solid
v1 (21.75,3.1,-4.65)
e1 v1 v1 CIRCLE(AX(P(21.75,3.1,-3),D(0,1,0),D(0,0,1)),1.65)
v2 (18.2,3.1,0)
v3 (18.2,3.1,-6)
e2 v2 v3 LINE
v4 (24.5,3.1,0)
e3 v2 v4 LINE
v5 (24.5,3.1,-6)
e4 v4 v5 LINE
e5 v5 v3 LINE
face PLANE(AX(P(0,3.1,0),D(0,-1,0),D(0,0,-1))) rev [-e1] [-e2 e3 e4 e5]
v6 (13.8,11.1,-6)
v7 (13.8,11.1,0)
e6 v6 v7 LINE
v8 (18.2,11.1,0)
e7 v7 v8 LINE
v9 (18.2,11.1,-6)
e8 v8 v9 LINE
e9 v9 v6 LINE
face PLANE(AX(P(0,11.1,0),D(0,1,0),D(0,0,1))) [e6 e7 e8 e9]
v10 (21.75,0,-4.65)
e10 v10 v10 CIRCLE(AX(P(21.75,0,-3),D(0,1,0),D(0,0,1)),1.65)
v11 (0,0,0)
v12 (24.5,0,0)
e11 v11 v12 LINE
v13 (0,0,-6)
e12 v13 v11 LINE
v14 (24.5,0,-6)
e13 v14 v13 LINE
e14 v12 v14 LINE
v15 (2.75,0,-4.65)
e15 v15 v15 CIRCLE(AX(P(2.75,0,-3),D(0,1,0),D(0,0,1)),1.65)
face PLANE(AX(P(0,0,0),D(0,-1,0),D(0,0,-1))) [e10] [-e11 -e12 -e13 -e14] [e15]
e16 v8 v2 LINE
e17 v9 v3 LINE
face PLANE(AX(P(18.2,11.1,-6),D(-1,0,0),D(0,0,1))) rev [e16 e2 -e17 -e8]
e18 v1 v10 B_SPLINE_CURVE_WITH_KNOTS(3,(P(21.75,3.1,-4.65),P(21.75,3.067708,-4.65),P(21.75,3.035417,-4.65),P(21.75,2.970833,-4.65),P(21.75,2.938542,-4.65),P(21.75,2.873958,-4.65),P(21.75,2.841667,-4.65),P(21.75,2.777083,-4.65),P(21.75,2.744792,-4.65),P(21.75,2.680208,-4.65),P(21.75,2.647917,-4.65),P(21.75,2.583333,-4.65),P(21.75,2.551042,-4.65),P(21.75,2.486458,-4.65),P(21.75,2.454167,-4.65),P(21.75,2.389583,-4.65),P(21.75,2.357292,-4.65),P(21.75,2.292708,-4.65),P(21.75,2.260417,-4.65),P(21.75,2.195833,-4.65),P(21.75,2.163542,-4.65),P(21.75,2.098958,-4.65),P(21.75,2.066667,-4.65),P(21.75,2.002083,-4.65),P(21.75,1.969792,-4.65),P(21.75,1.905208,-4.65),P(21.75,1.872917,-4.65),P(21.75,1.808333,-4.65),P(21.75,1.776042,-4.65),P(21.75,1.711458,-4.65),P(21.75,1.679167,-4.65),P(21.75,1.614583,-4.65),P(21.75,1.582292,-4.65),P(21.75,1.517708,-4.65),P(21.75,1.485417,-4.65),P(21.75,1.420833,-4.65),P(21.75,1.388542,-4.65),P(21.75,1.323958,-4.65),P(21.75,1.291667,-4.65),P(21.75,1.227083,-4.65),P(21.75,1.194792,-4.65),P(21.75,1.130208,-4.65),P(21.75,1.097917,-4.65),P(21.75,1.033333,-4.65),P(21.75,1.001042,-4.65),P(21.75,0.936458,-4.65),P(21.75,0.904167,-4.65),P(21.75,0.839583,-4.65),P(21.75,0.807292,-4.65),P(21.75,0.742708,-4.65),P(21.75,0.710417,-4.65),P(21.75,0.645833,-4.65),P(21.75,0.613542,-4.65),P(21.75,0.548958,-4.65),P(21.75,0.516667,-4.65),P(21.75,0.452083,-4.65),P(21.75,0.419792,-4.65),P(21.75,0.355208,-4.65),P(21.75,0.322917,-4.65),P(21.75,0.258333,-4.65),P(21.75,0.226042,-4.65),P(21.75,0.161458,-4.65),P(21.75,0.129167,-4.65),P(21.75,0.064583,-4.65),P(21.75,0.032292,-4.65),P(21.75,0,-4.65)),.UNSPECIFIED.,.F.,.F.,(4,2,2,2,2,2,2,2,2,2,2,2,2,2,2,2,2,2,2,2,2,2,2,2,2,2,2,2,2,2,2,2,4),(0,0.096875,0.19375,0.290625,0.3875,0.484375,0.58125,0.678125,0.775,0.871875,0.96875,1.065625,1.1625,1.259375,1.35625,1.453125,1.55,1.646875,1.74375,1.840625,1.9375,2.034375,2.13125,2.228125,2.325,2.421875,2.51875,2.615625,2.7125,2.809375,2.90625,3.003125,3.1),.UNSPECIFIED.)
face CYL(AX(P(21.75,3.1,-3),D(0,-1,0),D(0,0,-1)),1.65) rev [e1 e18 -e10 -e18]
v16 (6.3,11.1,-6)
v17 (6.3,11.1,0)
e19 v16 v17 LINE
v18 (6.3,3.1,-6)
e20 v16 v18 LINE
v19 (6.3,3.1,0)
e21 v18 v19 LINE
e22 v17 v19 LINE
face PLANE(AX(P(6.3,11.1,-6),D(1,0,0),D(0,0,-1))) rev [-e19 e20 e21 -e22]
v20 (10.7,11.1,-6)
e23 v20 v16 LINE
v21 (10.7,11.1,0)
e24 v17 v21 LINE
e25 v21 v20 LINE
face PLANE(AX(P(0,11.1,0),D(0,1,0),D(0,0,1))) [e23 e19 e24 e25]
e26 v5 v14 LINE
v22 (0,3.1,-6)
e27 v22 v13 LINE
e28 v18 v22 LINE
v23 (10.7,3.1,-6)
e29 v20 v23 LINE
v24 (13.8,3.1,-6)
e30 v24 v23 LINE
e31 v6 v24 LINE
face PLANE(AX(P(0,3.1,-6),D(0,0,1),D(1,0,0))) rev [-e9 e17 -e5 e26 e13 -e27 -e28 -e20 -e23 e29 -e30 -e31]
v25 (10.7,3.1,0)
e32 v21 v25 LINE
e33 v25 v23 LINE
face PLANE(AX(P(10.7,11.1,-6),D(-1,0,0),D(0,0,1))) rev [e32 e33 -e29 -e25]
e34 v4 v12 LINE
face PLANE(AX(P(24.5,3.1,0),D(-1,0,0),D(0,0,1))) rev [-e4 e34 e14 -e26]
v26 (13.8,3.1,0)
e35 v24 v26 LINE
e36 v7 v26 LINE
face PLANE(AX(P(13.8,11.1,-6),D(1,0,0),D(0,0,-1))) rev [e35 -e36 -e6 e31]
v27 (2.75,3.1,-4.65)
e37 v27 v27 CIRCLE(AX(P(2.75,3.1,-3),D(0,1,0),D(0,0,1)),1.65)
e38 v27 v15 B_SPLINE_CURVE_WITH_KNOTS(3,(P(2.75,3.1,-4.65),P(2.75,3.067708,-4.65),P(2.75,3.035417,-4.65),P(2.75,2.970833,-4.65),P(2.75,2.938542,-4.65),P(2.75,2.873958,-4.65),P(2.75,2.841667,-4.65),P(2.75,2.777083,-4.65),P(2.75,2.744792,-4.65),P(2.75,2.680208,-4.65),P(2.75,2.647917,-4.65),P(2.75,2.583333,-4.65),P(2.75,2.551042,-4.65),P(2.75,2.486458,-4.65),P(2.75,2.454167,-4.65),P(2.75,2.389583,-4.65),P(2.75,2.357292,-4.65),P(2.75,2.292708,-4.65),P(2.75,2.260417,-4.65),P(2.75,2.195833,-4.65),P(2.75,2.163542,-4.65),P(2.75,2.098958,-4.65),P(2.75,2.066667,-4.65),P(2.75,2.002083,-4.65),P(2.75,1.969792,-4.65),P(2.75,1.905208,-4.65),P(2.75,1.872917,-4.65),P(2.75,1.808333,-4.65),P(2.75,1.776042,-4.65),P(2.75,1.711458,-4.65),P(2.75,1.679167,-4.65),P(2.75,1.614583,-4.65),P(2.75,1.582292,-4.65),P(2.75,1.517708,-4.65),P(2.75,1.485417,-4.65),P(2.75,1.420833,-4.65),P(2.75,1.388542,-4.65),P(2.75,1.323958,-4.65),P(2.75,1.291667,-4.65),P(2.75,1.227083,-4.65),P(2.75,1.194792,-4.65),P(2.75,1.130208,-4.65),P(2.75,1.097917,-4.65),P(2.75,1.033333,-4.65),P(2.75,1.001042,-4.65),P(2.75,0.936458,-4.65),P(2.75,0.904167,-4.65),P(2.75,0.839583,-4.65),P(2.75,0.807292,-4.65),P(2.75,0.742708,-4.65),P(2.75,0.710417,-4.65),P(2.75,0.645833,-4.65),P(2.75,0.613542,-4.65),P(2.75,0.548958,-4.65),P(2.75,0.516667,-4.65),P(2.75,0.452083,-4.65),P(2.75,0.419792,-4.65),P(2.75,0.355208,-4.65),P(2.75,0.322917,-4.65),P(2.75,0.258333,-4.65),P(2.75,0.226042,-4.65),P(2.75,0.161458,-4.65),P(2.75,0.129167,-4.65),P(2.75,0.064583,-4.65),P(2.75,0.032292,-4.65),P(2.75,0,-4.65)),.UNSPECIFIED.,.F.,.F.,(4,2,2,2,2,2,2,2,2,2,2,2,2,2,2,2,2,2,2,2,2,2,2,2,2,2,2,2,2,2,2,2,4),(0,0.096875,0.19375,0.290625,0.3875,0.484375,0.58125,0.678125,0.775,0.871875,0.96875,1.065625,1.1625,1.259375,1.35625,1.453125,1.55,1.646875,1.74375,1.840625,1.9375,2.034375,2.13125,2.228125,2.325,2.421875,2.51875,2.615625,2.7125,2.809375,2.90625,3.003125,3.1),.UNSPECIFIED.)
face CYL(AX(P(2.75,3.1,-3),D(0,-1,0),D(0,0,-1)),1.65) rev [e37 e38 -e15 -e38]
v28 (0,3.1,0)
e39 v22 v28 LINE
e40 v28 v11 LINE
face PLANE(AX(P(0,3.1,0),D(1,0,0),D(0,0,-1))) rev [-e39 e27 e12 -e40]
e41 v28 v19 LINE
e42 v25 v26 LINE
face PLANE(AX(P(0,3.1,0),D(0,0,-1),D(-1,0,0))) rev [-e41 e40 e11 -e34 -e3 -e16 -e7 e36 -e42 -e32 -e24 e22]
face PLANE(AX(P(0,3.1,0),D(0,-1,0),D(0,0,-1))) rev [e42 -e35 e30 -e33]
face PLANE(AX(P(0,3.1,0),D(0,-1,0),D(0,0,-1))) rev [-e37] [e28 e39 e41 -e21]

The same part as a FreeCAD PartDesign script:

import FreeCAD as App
import Part
import Sketcher
from FreeCAD import Vector


def add_polygon(sketch, points):
    """Adds a closed chain of lines whose ends are joined by coincident constraints."""
    first, n = sketch.GeometryCount, len(points)
    for a, b in zip(points, points[1:] + points[:1]):
        sketch.addGeometry(Part.LineSegment(App.Vector(*a, 0), App.Vector(*b, 0)), False)
    for i in range(n):
        sketch.addConstraint(Sketcher.Constraint("Coincident", first + i, 2, first + (i + 1) % n, 1))

doc = App.newDocument("Part")
params = doc.addObject("Spreadsheet::Sheet", "Params")
for row, (alias, value) in enumerate([
    ("sketch1_diameter", "3.3 mm"),
    ("sketch1_height", "6 mm"),
    ("sketch1_width", "24.5 mm"),
    ("pad1_length", "3.1 mm"),
    ("sketch2_height", "6 mm"),
    ("sketch2_width", "4.4 mm"),
    ("pad2_length", "8 mm"),
], start=1):
    params.set(f"A{row}", alias)
    params.set(f"B{row}", "=" + value)
    params.setAlias(f"B{row}", alias)

body = doc.addObject("PartDesign::Body", "Body")

# Sketch on XZ plane
sketch1 = body.newObject("Sketcher::SketchObject", "Sketch")
sketch1.AttachmentSupport = (doc.getObject("XZ_Plane"), [""])
sketch1.MapMode = "FlatFace"
add_polygon(sketch1, [(0, -6), (0, 0), (24.5, 0), (24.5, -6)])  # lines 0-3
sketch1.addGeometry(Part.Circle(Vector(2.8, -3, 0), Vector(0, 0, 1), 1.6), False)  # 4
sketch1.addGeometry(Part.Circle(Vector(21.8, -3, 0), Vector(0, 0, 1), 1.6), False)  # 5
sketch1.addConstraint(Sketcher.Constraint("Vertical", 0))
sketch1.addConstraint(Sketcher.Constraint("Horizontal", 1))
sketch1.addConstraint(Sketcher.Constraint("Vertical", 2))
sketch1.addConstraint(Sketcher.Constraint("Horizontal", 3))
sketch1.addConstraint(Sketcher.Constraint("Coincident", 0, 2, -1, 1))
sketch1.addConstraint(Sketcher.Constraint("Equal", 4, 5))
sketch1.addConstraint(Sketcher.Constraint("Horizontal", 4, 3, 5, 3))
sketch1.addConstraint(Sketcher.Constraint("Diameter", 4, 3.3))
sketch1.addConstraint(Sketcher.Constraint("DistanceY", 0, 1, 0, 2, 6.0))
sketch1.addConstraint(Sketcher.Constraint("DistanceX", 1, 1, 1, 2, 24.5))
sketch1.addConstraint(Sketcher.Constraint("DistanceY", 4, 3, -1, 1, 3.0))
sketch1.addConstraint(Sketcher.Constraint("DistanceX", 4, 3, 5, 3, 19.0))
sketch1.addConstraint(Sketcher.Constraint("DistanceX", -1, 1, 4, 3, 2.75))
sketch1.setExpression("Constraints[11]", "Params.sketch1_diameter")
sketch1.setExpression("Constraints[12]", "Params.sketch1_height")
sketch1.setExpression("Constraints[13]", "Params.sketch1_width")
pad1 = body.newObject("PartDesign::Pad", "Pad")
pad1.Profile = sketch1
pad1.setExpression("Length", "Params.pad1_length")
pad1.Reversed = True

# Sketch on XZ plane
sketch2 = body.newObject("Sketcher::SketchObject", "Sketch001")
sketch2.AttachmentSupport = (doc.getObject("XZ_Plane"), [""])
sketch2.MapMode = "FlatFace"
sketch2.AttachmentOffset = App.Placement(Vector(0, 0, -3.1), App.Rotation())
add_polygon(sketch2, [(6.3, -6), (6.3, 0), (10.7, 0), (10.7, -6)])  # lines 0-3
add_polygon(sketch2, [(13.8, -6), (13.8, 0), (18.2, 0), (18.2, -6)])  # lines 4-7
sketch2.addConstraint(Sketcher.Constraint("Vertical", 0))
sketch2.addConstraint(Sketcher.Constraint("Horizontal", 1))
sketch2.addConstraint(Sketcher.Constraint("Vertical", 2))
sketch2.addConstraint(Sketcher.Constraint("Horizontal", 3))
sketch2.addConstraint(Sketcher.Constraint("Vertical", 4))
sketch2.addConstraint(Sketcher.Constraint("Horizontal", 5))
sketch2.addConstraint(Sketcher.Constraint("Vertical", 6))
sketch2.addConstraint(Sketcher.Constraint("Horizontal", 7))
sketch2.addConstraint(Sketcher.Constraint("PointOnObject", 0, 2, -1))
sketch2.addConstraint(Sketcher.Constraint("PointOnObject", 4, 2, -1))
sketch2.addConstraint(Sketcher.Constraint("Horizontal", 3, 2, 6, 2))
sketch2.addConstraint(Sketcher.Constraint("Equal", 3, 5))
sketch2.addConstraint(Sketcher.Constraint("DistanceY", 0, 1, 0, 2, 6.0))
sketch2.addConstraint(Sketcher.Constraint("DistanceX", 1, 1, 1, 2, 4.4))
sketch2.addConstraint(Sketcher.Constraint("DistanceX", -1, 1, 0, 2, 6.3))
sketch2.addConstraint(Sketcher.Constraint("DistanceX", -1, 1, 4, 2, 13.8))
sketch2.setExpression("Constraints[20]", "Params.sketch2_height")
sketch2.setExpression("Constraints[21]", "Params.sketch2_width")
pad2 = body.newObject("PartDesign::Pad", "Pad001")
pad2.Profile = sketch2
pad2.setExpression("Length", "Params.pad2_length")
pad2.Reversed = True

doc.recompute()
